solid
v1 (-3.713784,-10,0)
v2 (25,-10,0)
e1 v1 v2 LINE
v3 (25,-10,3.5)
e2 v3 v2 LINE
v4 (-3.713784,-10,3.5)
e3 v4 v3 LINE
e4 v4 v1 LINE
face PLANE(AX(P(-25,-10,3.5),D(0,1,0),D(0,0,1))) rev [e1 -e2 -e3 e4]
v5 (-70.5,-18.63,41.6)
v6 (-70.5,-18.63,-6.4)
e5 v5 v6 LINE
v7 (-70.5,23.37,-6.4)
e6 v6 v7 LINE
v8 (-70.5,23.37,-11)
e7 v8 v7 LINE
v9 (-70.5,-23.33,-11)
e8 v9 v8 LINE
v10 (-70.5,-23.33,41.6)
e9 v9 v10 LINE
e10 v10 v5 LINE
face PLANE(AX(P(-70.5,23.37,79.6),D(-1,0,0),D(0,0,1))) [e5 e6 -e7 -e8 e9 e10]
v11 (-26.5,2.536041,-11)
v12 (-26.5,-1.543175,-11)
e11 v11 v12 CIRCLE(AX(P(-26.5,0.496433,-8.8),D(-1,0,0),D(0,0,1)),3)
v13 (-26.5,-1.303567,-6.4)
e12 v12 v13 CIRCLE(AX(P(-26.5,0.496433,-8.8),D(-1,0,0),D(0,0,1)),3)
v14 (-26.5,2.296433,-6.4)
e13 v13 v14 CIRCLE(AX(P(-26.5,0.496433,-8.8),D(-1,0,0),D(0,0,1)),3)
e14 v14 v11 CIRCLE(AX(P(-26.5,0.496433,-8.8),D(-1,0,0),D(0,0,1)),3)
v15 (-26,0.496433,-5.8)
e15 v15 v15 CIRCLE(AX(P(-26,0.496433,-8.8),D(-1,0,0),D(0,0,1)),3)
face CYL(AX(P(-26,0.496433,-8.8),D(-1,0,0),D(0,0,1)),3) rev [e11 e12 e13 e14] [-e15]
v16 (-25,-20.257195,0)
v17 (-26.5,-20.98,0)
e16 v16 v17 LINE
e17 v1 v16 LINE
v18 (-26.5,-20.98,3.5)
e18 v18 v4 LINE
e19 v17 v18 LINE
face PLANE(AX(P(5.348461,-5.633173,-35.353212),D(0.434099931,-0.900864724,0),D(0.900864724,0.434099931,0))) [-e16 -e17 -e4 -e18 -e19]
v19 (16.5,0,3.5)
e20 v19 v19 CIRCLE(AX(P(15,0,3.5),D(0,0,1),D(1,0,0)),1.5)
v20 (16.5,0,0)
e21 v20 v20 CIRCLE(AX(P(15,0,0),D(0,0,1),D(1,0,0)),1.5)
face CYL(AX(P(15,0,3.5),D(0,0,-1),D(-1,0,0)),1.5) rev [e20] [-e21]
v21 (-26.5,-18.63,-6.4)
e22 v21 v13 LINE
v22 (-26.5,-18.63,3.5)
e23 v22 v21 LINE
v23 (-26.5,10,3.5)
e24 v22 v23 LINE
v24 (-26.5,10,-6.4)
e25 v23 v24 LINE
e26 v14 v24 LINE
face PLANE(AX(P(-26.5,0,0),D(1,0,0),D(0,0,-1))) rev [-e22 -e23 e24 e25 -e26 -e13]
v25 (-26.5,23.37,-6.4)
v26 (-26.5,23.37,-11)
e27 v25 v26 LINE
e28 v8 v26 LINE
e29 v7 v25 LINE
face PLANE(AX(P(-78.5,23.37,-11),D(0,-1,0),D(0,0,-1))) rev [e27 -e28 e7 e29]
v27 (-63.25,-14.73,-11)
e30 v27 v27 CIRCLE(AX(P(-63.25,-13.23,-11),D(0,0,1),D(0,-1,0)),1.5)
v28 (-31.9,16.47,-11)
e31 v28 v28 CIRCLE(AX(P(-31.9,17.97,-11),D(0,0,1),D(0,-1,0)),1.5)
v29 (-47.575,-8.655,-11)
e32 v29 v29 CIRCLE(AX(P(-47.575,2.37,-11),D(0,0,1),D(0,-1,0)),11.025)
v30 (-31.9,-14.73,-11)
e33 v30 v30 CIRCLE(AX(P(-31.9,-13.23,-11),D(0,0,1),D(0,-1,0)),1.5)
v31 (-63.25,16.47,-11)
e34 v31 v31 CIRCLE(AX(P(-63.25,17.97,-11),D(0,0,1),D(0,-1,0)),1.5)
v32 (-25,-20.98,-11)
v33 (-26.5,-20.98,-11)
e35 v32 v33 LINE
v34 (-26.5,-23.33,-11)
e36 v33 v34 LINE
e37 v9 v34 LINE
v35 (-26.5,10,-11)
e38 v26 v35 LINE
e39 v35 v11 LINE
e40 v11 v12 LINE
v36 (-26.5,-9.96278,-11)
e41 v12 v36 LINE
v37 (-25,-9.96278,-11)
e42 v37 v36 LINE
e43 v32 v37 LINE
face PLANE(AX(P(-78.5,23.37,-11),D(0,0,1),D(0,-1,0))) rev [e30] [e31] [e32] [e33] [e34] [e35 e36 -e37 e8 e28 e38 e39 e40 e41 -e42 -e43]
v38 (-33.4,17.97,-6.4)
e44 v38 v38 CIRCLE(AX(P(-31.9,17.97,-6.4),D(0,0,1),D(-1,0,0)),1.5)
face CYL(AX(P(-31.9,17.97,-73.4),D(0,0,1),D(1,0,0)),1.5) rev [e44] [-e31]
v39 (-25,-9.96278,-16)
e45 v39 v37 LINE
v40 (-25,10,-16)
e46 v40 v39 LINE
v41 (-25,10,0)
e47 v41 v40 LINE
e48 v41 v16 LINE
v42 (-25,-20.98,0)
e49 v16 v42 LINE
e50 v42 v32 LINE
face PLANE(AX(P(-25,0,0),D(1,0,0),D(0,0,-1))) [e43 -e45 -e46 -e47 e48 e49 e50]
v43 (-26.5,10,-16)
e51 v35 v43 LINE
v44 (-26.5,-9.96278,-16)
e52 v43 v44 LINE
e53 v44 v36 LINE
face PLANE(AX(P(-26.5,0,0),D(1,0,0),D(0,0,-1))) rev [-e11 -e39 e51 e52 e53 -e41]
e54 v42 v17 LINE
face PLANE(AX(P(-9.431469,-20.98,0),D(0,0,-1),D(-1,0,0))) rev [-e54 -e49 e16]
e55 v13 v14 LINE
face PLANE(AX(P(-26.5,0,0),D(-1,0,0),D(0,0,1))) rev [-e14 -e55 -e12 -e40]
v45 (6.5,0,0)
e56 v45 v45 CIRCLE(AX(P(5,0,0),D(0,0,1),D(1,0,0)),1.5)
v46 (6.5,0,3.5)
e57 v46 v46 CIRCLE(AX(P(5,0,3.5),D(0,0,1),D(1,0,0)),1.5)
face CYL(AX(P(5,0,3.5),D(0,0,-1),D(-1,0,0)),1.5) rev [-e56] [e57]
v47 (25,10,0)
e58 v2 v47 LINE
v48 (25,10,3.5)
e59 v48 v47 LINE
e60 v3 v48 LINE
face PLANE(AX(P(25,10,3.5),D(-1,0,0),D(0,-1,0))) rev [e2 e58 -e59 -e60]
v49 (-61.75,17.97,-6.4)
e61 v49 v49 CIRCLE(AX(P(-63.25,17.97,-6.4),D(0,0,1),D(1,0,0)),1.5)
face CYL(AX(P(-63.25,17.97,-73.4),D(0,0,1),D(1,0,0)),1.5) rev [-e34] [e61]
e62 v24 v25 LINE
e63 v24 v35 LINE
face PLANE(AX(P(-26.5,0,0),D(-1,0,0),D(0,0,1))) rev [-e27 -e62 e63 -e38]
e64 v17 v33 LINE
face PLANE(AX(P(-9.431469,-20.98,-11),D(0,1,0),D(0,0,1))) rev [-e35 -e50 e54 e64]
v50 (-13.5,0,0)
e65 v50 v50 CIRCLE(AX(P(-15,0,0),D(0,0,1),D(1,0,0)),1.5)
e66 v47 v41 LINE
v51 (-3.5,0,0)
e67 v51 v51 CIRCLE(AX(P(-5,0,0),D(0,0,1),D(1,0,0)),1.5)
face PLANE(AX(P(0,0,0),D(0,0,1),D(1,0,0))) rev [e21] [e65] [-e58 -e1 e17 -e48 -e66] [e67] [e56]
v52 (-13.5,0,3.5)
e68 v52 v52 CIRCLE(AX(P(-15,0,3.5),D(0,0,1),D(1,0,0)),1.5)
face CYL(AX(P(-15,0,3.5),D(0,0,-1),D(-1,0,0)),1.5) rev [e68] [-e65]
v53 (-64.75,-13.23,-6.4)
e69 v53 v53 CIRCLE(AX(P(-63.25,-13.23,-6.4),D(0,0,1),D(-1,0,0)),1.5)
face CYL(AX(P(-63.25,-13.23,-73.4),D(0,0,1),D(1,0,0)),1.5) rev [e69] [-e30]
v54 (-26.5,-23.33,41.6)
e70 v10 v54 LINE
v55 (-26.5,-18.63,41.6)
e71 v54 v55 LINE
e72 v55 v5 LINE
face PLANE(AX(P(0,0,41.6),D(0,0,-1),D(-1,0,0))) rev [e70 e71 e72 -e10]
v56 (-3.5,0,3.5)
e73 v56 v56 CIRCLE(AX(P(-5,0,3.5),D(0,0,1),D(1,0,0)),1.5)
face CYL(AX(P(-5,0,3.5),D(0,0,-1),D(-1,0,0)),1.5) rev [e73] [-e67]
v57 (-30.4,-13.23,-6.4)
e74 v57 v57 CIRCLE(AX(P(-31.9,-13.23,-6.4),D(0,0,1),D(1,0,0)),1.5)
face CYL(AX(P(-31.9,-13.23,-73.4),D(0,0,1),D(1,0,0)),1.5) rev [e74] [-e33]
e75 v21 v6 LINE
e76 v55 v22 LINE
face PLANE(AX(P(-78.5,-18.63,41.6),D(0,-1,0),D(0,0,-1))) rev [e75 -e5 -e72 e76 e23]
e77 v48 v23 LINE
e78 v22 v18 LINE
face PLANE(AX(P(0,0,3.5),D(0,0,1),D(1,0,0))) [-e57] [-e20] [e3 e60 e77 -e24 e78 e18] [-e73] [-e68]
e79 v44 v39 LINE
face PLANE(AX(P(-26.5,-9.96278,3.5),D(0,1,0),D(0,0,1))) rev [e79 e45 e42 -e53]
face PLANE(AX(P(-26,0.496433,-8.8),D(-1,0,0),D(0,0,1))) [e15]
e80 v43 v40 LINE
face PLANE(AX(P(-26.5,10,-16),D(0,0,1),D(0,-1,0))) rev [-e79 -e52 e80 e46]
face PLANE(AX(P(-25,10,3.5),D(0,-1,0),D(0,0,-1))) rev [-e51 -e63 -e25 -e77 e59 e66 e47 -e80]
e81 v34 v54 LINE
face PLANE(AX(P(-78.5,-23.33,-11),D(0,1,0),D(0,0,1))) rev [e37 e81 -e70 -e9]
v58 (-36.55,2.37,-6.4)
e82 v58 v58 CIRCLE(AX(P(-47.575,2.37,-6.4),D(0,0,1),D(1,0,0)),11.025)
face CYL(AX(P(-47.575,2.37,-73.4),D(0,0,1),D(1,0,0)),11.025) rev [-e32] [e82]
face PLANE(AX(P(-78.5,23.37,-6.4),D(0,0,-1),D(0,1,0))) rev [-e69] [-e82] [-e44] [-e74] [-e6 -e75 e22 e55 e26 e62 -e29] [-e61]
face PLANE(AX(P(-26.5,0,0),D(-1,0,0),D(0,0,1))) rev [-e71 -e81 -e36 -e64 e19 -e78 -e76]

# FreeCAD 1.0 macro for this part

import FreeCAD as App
import Part
import Sketcher
Q = App.Units.Quantity

doc = App.newDocument("Part")
body = doc.addObject("PartDesign::Body", "Body")

sketch1 = body.newObject("Sketcher::SketchObject", "Sketch")
sketch1.AttachmentSupport = (doc.getObject("XY_Plane"), [""])
sketch1.MapMode = "FlatFace"
sketch1.addGeometry([
    Part.LineSegment(App.Vector(-25, 10, 0), App.Vector(-25, -10, 0)),
    Part.LineSegment(App.Vector(-25, -10, 0), App.Vector(25, -10, 0)),
    Part.LineSegment(App.Vector(25, -10, 0), App.Vector(25, 10, 0)),
    Part.LineSegment(App.Vector(25, 10, 0), App.Vector(-25, 10, 0)),
    Part.Circle(App.Vector(-15, 0, 0), App.Vector(0, 0, 1), 1.5),
    Part.Circle(App.Vector(-5, 0, 0), App.Vector(0, 0, 1), 1.5),
    Part.Circle(App.Vector(5, 0, 0), App.Vector(0, 0, 1), 1.5),
    Part.Circle(App.Vector(15, 0, 0), App.Vector(0, 0, 1), 1.5),
], False)
sketch1.addConstraint([
    Sketcher.Constraint("Coincident", 0, 2, 1, 1),
    Sketcher.Constraint("Coincident", 1, 2, 2, 1),
    Sketcher.Constraint("Coincident", 2, 2, 3, 1),
    Sketcher.Constraint("Coincident", 3, 2, 0, 1),
    Sketcher.Constraint("Vertical", 0),
    Sketcher.Constraint("Horizontal", 1),
    Sketcher.Constraint("Vertical", 2),
    Sketcher.Constraint("Horizontal", 3),
    Sketcher.Constraint("Equal", 4, 5),
    Sketcher.Constraint("Equal", 5, 6),
    Sketcher.Constraint("Equal", 6, 7),
    Sketcher.Constraint("Symmetric", 5, 3, 6, 3, -1, 1),
    Sketcher.Constraint("Symmetric", 4, 3, 7, 3, -1, 1),
    Sketcher.Constraint("Symmetric", 0, 2, 2, 2, -1, 1),
    Sketcher.Constraint("PointOnObject", 4, 3, -1),
    Sketcher.Constraint("PointOnObject", 5, 3, -1),
    Sketcher.Constraint("Diameter", 4, Q("3 mm")),
    Sketcher.Constraint("DistanceX", 1, 1, 1, 2, Q("50 mm")),
    Sketcher.Constraint("DistanceY", 0, 2, 0, 1, Q("20 mm")),
    Sketcher.Constraint("DistanceX", 4, 3, -1, 1, Q("15 mm")),
    Sketcher.Constraint("DistanceX", 5, 3, -1, 1, Q("5 mm")),
])
pad1 = body.newObject("PartDesign::Pad", "Pad")
pad1.Profile = sketch1
pad1.Length = 3.5

sketch2 = body.newObject("Sketcher::SketchObject", "Sketch001")
sketch2.AttachmentSupport = (doc.getObject("YZ_Plane"), [""])
sketch2.MapMode = "FlatFace"
sketch2.AttachmentOffset = App.Placement(App.Vector(0, 0, -25), App.Rotation())
sketch2.addGeometry([
    Part.LineSegment(App.Vector(10, -16, 0), App.Vector(-10, -16, 0)),
    Part.LineSegment(App.Vector(-10, -16, 0), App.Vector(-10, 3.5, 0)),
    Part.LineSegment(App.Vector(-10, 3.5, 0), App.Vector(10, 3.5, 0)),
    Part.LineSegment(App.Vector(10, 3.5, 0), App.Vector(10, -16, 0)),
    Part.Circle(App.Vector(0.5, -8.8, 0), App.Vector(0, 0, 1), 2),
], False)
sketch2.addConstraint([
    Sketcher.Constraint("Coincident", 0, 2, 1, 1),
    Sketcher.Constraint("Coincident", 1, 2, 2, 1),
    Sketcher.Constraint("Coincident", 2, 2, 3, 1),
    Sketcher.Constraint("Coincident", 3, 2, 0, 1),
    Sketcher.Constraint("Horizontal", 0),
    Sketcher.Constraint("Vertical", 1),
    Sketcher.Constraint("Horizontal", 2),
    Sketcher.Constraint("Vertical", 3),
    Sketcher.Constraint("Diameter", 4, Q("4 mm")),
    Sketcher.Constraint("DistanceY", 1, 1, 1, 2, Q("19.5 mm")),
    Sketcher.Constraint("DistanceY", 0, 2, -1, 1, Q("16 mm")),
    Sketcher.Constraint("DistanceX", -1, 1, 2, 2, Q("10 mm")),
    Sketcher.Constraint("DistanceY", 4, 3, -1, 1, Q("8.8 mm")),
    Sketcher.Constraint("DistanceX", 0, 2, 0, 1, Q("19.96278 mm")),
    Sketcher.Constraint("DistanceX", -1, 1, 4, 3, Q("0.496433 mm")),
])
pad2 = body.newObject("PartDesign::Pad", "Pad001")
pad2.Profile = sketch2
pad2.Length = 1.5
pad2.Reversed = True

sketch3 = body.newObject("Sketcher::SketchObject", "Sketch002")
sketch3.AttachmentSupport = (doc.getObject("YZ_Plane"), [""])
sketch3.MapMode = "FlatFace"
sketch3.AttachmentOffset = App.Placement(App.Vector(0, 0, -26.5), App.Rotation())
sketch3.addGeometry(Part.Circle(App.Vector(0.5, -8.8, 0), App.Vector(0, 0, 1), 3), False)
sketch3.addConstraint([
    Sketcher.Constraint("Diameter", 0, Q("6 mm")),
    Sketcher.Constraint("DistanceY", 0, 3, -1, 1, Q("8.8 mm")),
    Sketcher.Constraint("DistanceX", -1, 1, 0, 3, Q("0.496433 mm")),
])
pocket1 = body.newObject("PartDesign::Pocket", "Pocket")
pocket1.Profile = sketch3
pocket1.Length = 0.5
pocket1.Reversed = True

sketch4 = body.newObject("Sketcher::SketchObject", "Sketch003")
sketch4.AttachmentSupport = (doc.getObject("YZ_Plane"), [""])
sketch4.MapMode = "FlatFace"
sketch4.AttachmentOffset = App.Placement(App.Vector(0, 0, -26.5), App.Rotation())
sketch4.addGeometry([
    Part.LineSegment(App.Vector(23.4, -11, 0), App.Vector(-23.3, -11, 0)),
    Part.LineSegment(App.Vector(-23.3, -11, 0), App.Vector(-23.3, -6.4, 0)),
    Part.LineSegment(App.Vector(-23.3, -6.4, 0), App.Vector(23.4, -6.4, 0)),
    Part.LineSegment(App.Vector(23.4, -6.4, 0), App.Vector(23.4, -11, 0)),
], False)
sketch4.addConstraint([
    Sketcher.Constraint("Coincident", 0, 2, 1, 1),
    Sketcher.Constraint("Coincident", 1, 2, 2, 1),
    Sketcher.Constraint("Coincident", 2, 2, 3, 1),
    Sketcher.Constraint("Coincident", 3, 2, 0, 1),
    Sketcher.Constraint("Horizontal", 0),
    Sketcher.Constraint("Vertical", 1),
    Sketcher.Constraint("Horizontal", 2),
    Sketcher.Constraint("Vertical", 3),
    Sketcher.Constraint("DistanceX", 0, 2, 0, 1, Q("46.7 mm")),
    Sketcher.Constraint("DistanceY", 1, 1, 1, 2, Q("4.6 mm")),
    Sketcher.Constraint("DistanceY", 0, 2, -1, 1, Q("11 mm")),
    Sketcher.Constraint("DistanceX", 0, 2, -1, 1, Q("23.33 mm")),
])
pad3 = body.newObject("PartDesign::Pad", "Pad002")
pad3.Profile = sketch4
pad3.Length = 52
pad3.Reversed = True

sketch5 = body.newObject("Sketcher::SketchObject", "Sketch004")
sketch5.AttachmentSupport = (doc.getObject("XY_Plane"), [""])
sketch5.MapMode = "FlatFace"
sketch5.AttachmentOffset = App.Placement(App.Vector(0, 0, -6.4), App.Rotation())
sketch5.addGeometry([
    Part.LineSegment(App.Vector(-78.5, -18.6, 0), App.Vector(-78.5, -23.3, 0)),
    Part.LineSegment(App.Vector(-78.5, -23.3, 0), App.Vector(-26.5, -23.3, 0)),
    Part.LineSegment(App.Vector(-26.5, -23.3, 0), App.Vector(-26.5, -18.6, 0)),
    Part.LineSegment(App.Vector(-26.5, -18.6, 0), App.Vector(-78.5, -18.6, 0)),
], False)
sketch5.addConstraint([
    Sketcher.Constraint("Coincident", 0, 2, 1, 1),
    Sketcher.Constraint("Coincident", 1, 2, 2, 1),
    Sketcher.Constraint("Coincident", 2, 2, 3, 1),
    Sketcher.Constraint("Coincident", 3, 2, 0, 1),
    Sketcher.Constraint("Vertical", 0),
    Sketcher.Constraint("Horizontal", 1),
    Sketcher.Constraint("Vertical", 2),
    Sketcher.Constraint("Horizontal", 3),
    Sketcher.Constraint("DistanceX", 1, 1, 1, 2, Q("52 mm")),
    Sketcher.Constraint("DistanceY", 0, 2, 0, 1, Q("4.7 mm")),
    Sketcher.Constraint("DistanceX", 0, 2, -1, 1, Q("78.5 mm")),
    Sketcher.Constraint("DistanceY", 0, 2, -1, 1, Q("23.33 mm")),
])
pad4 = body.newObject("PartDesign::Pad", "Pad003")
pad4.Profile = sketch5
pad4.Length = 48

sketch6 = body.newObject("Sketcher::SketchObject", "Sketch005")
sketch6.AttachmentSupport = (doc.getObject("YZ_Plane"), [""])
sketch6.MapMode = "FlatFace"
sketch6.AttachmentOffset = App.Placement(App.Vector(0, 0, -25), App.Rotation())
sketch6.addGeometry(Part.Circle(App.Vector(0.5, -8.8, 0), App.Vector(0, 0, 1), 2), False)
sketch6.addConstraint([
    Sketcher.Constraint("Diameter", 0, Q("4 mm")),
    Sketcher.Constraint("DistanceY", 0, 3, -1, 1, Q("8.8 mm")),
    Sketcher.Constraint("DistanceX", -1, 1, 0, 3, Q("0.496433 mm")),
])
pad5 = body.newObject("PartDesign::Pad", "Pad004")
pad5.Profile = sketch6
pad5.Length = 1
pad5.Reversed = True

sketch7 = body.newObject("Sketcher::SketchObject", "Sketch006")
sketch7.AttachmentSupport = (doc.getObject("XY_Plane"), [""])
sketch7.MapMode = "FlatFace"
sketch7.AttachmentOffset = App.Placement(App.Vector(0, 0, -6.4), App.Rotation())
sketch7.addGeometry([
    Part.Circle(App.Vector(-31.9, -13.2, 0), App.Vector(0, 0, 1), 1.5),
    Part.Circle(App.Vector(-63.2, -13.2, 0), App.Vector(0, 0, 1), 1.5),
    Part.Circle(App.Vector(-31.9, 18, 0), App.Vector(0, 0, 1), 1.5),
    Part.Circle(App.Vector(-63.2, 18, 0), App.Vector(0, 0, 1), 1.5),
    Part.Circle(App.Vector(-47.6, 2.4, 0), App.Vector(0, 0, 1), 11),
], False)
sketch7.addConstraint([
    Sketcher.Constraint("Equal", 0, 1),
    Sketcher.Constraint("Equal", 1, 2),
    Sketcher.Constraint("Equal", 2, 3),
    Sketcher.Constraint("Horizontal", 0, 3, 1, 3),
    Sketcher.Constraint("Horizontal", 2, 3, 3, 3),
    Sketcher.Constraint("Vertical", 0, 3, 2, 3),
    Sketcher.Constraint("Vertical", 1, 3, 3, 3),
    Sketcher.Constraint("Diameter", 0, Q("3 mm")),
    Sketcher.Constraint("Diameter", 4, Q("22.05 mm")),
    Sketcher.Constraint("DistanceX", 0, 3, -1, 1, Q("31.9 mm")),
    Sketcher.Constraint("DistanceY", 0, 3, 2, 3, Q("31.2 mm")),
    Sketcher.Constraint("DistanceY", 1, 3, 4, 3, Q("15.6 mm")),
    Sketcher.Constraint("DistanceY", 0, 3, -1, 1, Q("13.23 mm")),
    Sketcher.Constraint("DistanceX", 1, 3, -1, 1, Q("63.25 mm")),
    Sketcher.Constraint("DistanceX", 4, 3, -1, 1, Q("47.575 mm")),
])
pocket2 = body.newObject("PartDesign::Pocket", "Pocket001")
pocket2.Profile = sketch7
pocket2.Length = 67

sketch8 = body.newObject("Sketcher::SketchObject", "Sketch007")
sketch8.AttachmentSupport = (doc.getObject("XY_Plane"), [""])
sketch8.MapMode = "FlatFace"
sketch8.AttachmentOffset = App.Placement(App.Vector(0, 0, -6.4), App.Rotation())
sketch8.addGeometry([
    Part.LineSegment(App.Vector(-78, 23, 0), App.Vector(-78, -29, 0)),
    Part.LineSegment(App.Vector(-78, -29, 0), App.Vector(-70, -29, 0)),
    Part.LineSegment(App.Vector(-70, -29, 0), App.Vector(-70, 23, 0)),
    Part.LineSegment(App.Vector(-70, 23, 0), App.Vector(-78, 23, 0)),
], False)
sketch8.addConstraint([
    Sketcher.Constraint("Coincident", 0, 2, 1, 1),
    Sketcher.Constraint("Coincident", 1, 2, 2, 1),
    Sketcher.Constraint("Coincident", 2, 2, 3, 1),
    Sketcher.Constraint("Coincident", 3, 2, 0, 1),
    Sketcher.Constraint("Vertical", 0),
    Sketcher.Constraint("Horizontal", 1),
    Sketcher.Constraint("Vertical", 2),
    Sketcher.Constraint("Horizontal", 3),
    Sketcher.Constraint("DistanceX", 1, 1, 1, 2, Q("8 mm")),
    Sketcher.Constraint("DistanceX", 0, 2, -1, 1, Q("78.5 mm")),
    Sketcher.Constraint("DistanceY", -1, 1, 2, 2, Q("23.37 mm")),
    Sketcher.Constraint("DistanceY", 0, 2, 0, 1, Q("52.582189 mm")),
])
pocket3 = body.newObject("PartDesign::Pocket", "Pocket002")
pocket3.Profile = sketch8
pocket3.Length = 86
pocket3.Reversed = True

sketch9 = body.newObject("Sketcher::SketchObject", "Sketch008")
sketch9.AttachmentSupport = (doc.getObject("XY_Plane"), [""])
sketch9.MapMode = "FlatFace"
sketch9.AttachmentOffset = App.Placement(App.Vector(0, 0, -6.4), App.Rotation())
sketch9.addGeometry([
    Part.LineSegment(App.Vector(-78, 23, 0), App.Vector(-78, -31, 0)),
    Part.LineSegment(App.Vector(-78, -31, 0), App.Vector(-70, -31, 0)),
    Part.LineSegment(App.Vector(-70, -31, 0), App.Vector(-70, 23, 0)),
    Part.LineSegment(App.Vector(-70, 23, 0), App.Vector(-78, 23, 0)),
], False)
sketch9.addConstraint([
    Sketcher.Constraint("Coincident", 0, 2, 1, 1),
    Sketcher.Constraint("Coincident", 1, 2, 2, 1),
    Sketcher.Constraint("Coincident", 2, 2, 3, 1),
    Sketcher.Constraint("Coincident", 3, 2, 0, 1),
    Sketcher.Constraint("Vertical", 0),
    Sketcher.Constraint("Horizontal", 1),
    Sketcher.Constraint("Vertical", 2),
    Sketcher.Constraint("Horizontal", 3),
    Sketcher.Constraint("DistanceX", 1, 1, 1, 2, Q("8 mm")),
    Sketcher.Constraint("DistanceX", 0, 2, -1, 1, Q("78.5 mm")),
    Sketcher.Constraint("DistanceY", -1, 1, 2, 2, Q("23.37 mm")),
    Sketcher.Constraint("DistanceY", 0, 2, 0, 1, Q("54.082641 mm")),
])
pocket4 = body.newObject("PartDesign::Pocket", "Pocket003")
pocket4.Profile = sketch9
pocket4.Length = 86

sketch10 = body.newObject("Sketcher::SketchObject", "Sketch009")
sketch10.AttachmentSupport = (doc.getObject("XY_Plane"), [""])
sketch10.MapMode = "FlatFace"
sketch10.AttachmentOffset = App.Placement(App.Vector(0, 0, 3.5), App.Rotation())
sketch10.addGeometry([
    Part.LineSegment(App.Vector(-26, -6, 0), App.Vector(-26, -21, 0)),
    Part.LineSegment(App.Vector(-26, -21, 0), App.Vector(5, -6, 0)),
    Part.LineSegment(App.Vector(5, -6, 0), App.Vector(-26, -6, 0)),
], False)
sketch10.addConstraint([
    Sketcher.Constraint("Coincident", 0, 2, 1, 1),
    Sketcher.Constraint("Coincident", 1, 2, 2, 1),
    Sketcher.Constraint("Coincident", 2, 2, 0, 1),
    Sketcher.Constraint("Vertical", 0),
    Sketcher.Constraint("Horizontal", 2),
    Sketcher.Constraint("DistanceX", 0, 2, -1, 1, Q("26.5 mm")),
    Sketcher.Constraint("DistanceY", 0, 2, -1, 1, Q("20.98 mm")),
    Sketcher.Constraint("DistanceX", 2, 2, 2, 1, Q("31.848461 mm")),
    Sketcher.Constraint("Distance", 1, Q("35.353212 mm")),
])
pad6 = body.newObject("PartDesign::Pad", "Pad005")
pad6.Profile = sketch10
pad6.Length = 3.5
pad6.Reversed = True

sketch11 = body.newObject("Sketcher::SketchObject", "Sketch010")
sketch11.AttachmentSupport = (doc.getObject("YZ_Plane"), [""])
sketch11.MapMode = "FlatFace"
sketch11.AttachmentOffset = App.Placement(App.Vector(0, 0, -26.5), App.Rotation())
sketch11.addGeometry([
    Part.LineSegment(App.Vector(-10, 0, 0), App.Vector(-21, 0, 0)),
    Part.LineSegment(App.Vector(-21, 0, 0), App.Vector(-21, -11, 0)),
    Part.LineSegment(App.Vector(-21, -11, 0), App.Vector(-10, -11, 0)),
    Part.LineSegment(App.Vector(-10, -11, 0), App.Vector(-10, 0, 0)),
], False)
sketch11.addConstraint([
    Sketcher.Constraint("Coincident", 0, 2, 1, 1),
    Sketcher.Constraint("Coincident", 1, 2, 2, 1),
    Sketcher.Constraint("Coincident", 2, 2, 3, 1),
    Sketcher.Constraint("Coincident", 3, 2, 0, 1),
    Sketcher.Constraint("Horizontal", 0),
    Sketcher.Constraint("Vertical", 1),
    Sketcher.Constraint("Horizontal", 2),
    Sketcher.Constraint("Vertical", 3),
    Sketcher.Constraint("PointOnObject", 0, 2, -1),
    Sketcher.Constraint("DistanceY", 1, 2, 1, 1, Q("11 mm")),
    Sketcher.Constraint("DistanceX", 0, 2, -1, 1, Q("20.98 mm")),
    Sketcher.Constraint("DistanceX", 0, 2, 0, 1, Q("11.01722 mm")),
])
pad7 = body.newObject("PartDesign::Pad", "Pad006")
pad7.Profile = sketch11
pad7.Length = 1.5

doc.recompute()
